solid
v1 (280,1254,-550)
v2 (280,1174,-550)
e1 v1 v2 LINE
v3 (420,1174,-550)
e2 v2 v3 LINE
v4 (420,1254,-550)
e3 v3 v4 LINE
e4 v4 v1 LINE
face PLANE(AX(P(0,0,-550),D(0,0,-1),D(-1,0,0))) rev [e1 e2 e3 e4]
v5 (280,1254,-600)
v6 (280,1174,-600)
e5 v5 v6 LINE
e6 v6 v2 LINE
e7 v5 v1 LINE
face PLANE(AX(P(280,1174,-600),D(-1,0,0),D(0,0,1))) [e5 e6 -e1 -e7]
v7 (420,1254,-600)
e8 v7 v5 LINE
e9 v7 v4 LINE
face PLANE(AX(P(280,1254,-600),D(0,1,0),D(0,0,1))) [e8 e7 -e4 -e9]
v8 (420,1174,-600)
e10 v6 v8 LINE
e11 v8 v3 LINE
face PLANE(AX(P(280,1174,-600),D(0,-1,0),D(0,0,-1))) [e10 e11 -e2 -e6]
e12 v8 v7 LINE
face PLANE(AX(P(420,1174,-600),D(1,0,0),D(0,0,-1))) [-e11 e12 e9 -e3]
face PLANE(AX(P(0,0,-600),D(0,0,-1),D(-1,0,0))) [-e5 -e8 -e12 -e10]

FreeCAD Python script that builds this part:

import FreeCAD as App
import Part
import Sketcher

V = App.Vector
Q = App.Units.Quantity

doc = App.newDocument("Part")
params = doc.addObject("Spreadsheet::Sheet", "Params")
for row, (alias, value) in enumerate([
    ("sketch1_width", "140 mm"),
    ("sketch1_height", "80 mm"),
    ("pad1_length", "50 mm"),
], start=1):
    params.set(f"A{row}", alias)
    params.set(f"B{row}", "=" + value)
    params.setAlias(f"B{row}", alias)

body = doc.addObject("PartDesign::Body", "Body")

sketch1 = doc.addObject("Sketcher::SketchObject", "Sketch")
body.addObject(sketch1)
sketch1.AttachmentSupport = (doc.XY_Plane, [""])
sketch1.MapMode = "FlatFace"
sketch1.AttachmentOffset = App.Placement(V(0, 0, -550), App.Rotation())
sketch1.addGeometry(Part.LineSegment(V(280, 1254, 0), V(280, 1174, 0)), False)
sketch1.addGeometry(Part.LineSegment(V(280, 1174, 0), V(420, 1174, 0)), False)
sketch1.addGeometry(Part.LineSegment(V(420, 1174, 0), V(420, 1254, 0)), False)
sketch1.addGeometry(Part.LineSegment(V(420, 1254, 0), V(280, 1254, 0)), False)
sketch1.addConstraint(Sketcher.Constraint("Coincident", 0, 2, 1, 1))
sketch1.addConstraint(Sketcher.Constraint("Coincident", 1, 2, 2, 1))
sketch1.addConstraint(Sketcher.Constraint("Coincident", 2, 2, 3, 1))
sketch1.addConstraint(Sketcher.Constraint("Coincident", 3, 2, 0, 1))
sketch1.addConstraint(Sketcher.Constraint("Vertical", 0))
sketch1.addConstraint(Sketcher.Constraint("Horizontal", 1))
sketch1.addConstraint(Sketcher.Constraint("Vertical", 2))
sketch1.addConstraint(Sketcher.Constraint("Horizontal", 3))
sketch1.addConstraint(Sketcher.Constraint("DistanceX", 1, 1, 1, 2, Q("140 mm")))
sketch1.addConstraint(Sketcher.Constraint("DistanceY", 0, 2, 0, 1, Q("80 mm")))
sketch1.addConstraint(Sketcher.Constraint("DistanceX", -1, 1, 0, 2, Q("280 mm")))
sketch1.addConstraint(Sketcher.Constraint("DistanceY", -1, 1, 0, 2, Q("1174 mm")))
sketch1.setExpression("Constraints[8]", "Params.sketch1_width")
sketch1.setExpression("Constraints[9]", "Params.sketch1_height")
pad1 = doc.addObject("PartDesign::Pad", "Pad")
body.addObject(pad1)
pad1.Profile = sketch1
pad1.setExpression("Length", "Params.pad1_length")
pad1.Reversed = True

doc.recompute()
